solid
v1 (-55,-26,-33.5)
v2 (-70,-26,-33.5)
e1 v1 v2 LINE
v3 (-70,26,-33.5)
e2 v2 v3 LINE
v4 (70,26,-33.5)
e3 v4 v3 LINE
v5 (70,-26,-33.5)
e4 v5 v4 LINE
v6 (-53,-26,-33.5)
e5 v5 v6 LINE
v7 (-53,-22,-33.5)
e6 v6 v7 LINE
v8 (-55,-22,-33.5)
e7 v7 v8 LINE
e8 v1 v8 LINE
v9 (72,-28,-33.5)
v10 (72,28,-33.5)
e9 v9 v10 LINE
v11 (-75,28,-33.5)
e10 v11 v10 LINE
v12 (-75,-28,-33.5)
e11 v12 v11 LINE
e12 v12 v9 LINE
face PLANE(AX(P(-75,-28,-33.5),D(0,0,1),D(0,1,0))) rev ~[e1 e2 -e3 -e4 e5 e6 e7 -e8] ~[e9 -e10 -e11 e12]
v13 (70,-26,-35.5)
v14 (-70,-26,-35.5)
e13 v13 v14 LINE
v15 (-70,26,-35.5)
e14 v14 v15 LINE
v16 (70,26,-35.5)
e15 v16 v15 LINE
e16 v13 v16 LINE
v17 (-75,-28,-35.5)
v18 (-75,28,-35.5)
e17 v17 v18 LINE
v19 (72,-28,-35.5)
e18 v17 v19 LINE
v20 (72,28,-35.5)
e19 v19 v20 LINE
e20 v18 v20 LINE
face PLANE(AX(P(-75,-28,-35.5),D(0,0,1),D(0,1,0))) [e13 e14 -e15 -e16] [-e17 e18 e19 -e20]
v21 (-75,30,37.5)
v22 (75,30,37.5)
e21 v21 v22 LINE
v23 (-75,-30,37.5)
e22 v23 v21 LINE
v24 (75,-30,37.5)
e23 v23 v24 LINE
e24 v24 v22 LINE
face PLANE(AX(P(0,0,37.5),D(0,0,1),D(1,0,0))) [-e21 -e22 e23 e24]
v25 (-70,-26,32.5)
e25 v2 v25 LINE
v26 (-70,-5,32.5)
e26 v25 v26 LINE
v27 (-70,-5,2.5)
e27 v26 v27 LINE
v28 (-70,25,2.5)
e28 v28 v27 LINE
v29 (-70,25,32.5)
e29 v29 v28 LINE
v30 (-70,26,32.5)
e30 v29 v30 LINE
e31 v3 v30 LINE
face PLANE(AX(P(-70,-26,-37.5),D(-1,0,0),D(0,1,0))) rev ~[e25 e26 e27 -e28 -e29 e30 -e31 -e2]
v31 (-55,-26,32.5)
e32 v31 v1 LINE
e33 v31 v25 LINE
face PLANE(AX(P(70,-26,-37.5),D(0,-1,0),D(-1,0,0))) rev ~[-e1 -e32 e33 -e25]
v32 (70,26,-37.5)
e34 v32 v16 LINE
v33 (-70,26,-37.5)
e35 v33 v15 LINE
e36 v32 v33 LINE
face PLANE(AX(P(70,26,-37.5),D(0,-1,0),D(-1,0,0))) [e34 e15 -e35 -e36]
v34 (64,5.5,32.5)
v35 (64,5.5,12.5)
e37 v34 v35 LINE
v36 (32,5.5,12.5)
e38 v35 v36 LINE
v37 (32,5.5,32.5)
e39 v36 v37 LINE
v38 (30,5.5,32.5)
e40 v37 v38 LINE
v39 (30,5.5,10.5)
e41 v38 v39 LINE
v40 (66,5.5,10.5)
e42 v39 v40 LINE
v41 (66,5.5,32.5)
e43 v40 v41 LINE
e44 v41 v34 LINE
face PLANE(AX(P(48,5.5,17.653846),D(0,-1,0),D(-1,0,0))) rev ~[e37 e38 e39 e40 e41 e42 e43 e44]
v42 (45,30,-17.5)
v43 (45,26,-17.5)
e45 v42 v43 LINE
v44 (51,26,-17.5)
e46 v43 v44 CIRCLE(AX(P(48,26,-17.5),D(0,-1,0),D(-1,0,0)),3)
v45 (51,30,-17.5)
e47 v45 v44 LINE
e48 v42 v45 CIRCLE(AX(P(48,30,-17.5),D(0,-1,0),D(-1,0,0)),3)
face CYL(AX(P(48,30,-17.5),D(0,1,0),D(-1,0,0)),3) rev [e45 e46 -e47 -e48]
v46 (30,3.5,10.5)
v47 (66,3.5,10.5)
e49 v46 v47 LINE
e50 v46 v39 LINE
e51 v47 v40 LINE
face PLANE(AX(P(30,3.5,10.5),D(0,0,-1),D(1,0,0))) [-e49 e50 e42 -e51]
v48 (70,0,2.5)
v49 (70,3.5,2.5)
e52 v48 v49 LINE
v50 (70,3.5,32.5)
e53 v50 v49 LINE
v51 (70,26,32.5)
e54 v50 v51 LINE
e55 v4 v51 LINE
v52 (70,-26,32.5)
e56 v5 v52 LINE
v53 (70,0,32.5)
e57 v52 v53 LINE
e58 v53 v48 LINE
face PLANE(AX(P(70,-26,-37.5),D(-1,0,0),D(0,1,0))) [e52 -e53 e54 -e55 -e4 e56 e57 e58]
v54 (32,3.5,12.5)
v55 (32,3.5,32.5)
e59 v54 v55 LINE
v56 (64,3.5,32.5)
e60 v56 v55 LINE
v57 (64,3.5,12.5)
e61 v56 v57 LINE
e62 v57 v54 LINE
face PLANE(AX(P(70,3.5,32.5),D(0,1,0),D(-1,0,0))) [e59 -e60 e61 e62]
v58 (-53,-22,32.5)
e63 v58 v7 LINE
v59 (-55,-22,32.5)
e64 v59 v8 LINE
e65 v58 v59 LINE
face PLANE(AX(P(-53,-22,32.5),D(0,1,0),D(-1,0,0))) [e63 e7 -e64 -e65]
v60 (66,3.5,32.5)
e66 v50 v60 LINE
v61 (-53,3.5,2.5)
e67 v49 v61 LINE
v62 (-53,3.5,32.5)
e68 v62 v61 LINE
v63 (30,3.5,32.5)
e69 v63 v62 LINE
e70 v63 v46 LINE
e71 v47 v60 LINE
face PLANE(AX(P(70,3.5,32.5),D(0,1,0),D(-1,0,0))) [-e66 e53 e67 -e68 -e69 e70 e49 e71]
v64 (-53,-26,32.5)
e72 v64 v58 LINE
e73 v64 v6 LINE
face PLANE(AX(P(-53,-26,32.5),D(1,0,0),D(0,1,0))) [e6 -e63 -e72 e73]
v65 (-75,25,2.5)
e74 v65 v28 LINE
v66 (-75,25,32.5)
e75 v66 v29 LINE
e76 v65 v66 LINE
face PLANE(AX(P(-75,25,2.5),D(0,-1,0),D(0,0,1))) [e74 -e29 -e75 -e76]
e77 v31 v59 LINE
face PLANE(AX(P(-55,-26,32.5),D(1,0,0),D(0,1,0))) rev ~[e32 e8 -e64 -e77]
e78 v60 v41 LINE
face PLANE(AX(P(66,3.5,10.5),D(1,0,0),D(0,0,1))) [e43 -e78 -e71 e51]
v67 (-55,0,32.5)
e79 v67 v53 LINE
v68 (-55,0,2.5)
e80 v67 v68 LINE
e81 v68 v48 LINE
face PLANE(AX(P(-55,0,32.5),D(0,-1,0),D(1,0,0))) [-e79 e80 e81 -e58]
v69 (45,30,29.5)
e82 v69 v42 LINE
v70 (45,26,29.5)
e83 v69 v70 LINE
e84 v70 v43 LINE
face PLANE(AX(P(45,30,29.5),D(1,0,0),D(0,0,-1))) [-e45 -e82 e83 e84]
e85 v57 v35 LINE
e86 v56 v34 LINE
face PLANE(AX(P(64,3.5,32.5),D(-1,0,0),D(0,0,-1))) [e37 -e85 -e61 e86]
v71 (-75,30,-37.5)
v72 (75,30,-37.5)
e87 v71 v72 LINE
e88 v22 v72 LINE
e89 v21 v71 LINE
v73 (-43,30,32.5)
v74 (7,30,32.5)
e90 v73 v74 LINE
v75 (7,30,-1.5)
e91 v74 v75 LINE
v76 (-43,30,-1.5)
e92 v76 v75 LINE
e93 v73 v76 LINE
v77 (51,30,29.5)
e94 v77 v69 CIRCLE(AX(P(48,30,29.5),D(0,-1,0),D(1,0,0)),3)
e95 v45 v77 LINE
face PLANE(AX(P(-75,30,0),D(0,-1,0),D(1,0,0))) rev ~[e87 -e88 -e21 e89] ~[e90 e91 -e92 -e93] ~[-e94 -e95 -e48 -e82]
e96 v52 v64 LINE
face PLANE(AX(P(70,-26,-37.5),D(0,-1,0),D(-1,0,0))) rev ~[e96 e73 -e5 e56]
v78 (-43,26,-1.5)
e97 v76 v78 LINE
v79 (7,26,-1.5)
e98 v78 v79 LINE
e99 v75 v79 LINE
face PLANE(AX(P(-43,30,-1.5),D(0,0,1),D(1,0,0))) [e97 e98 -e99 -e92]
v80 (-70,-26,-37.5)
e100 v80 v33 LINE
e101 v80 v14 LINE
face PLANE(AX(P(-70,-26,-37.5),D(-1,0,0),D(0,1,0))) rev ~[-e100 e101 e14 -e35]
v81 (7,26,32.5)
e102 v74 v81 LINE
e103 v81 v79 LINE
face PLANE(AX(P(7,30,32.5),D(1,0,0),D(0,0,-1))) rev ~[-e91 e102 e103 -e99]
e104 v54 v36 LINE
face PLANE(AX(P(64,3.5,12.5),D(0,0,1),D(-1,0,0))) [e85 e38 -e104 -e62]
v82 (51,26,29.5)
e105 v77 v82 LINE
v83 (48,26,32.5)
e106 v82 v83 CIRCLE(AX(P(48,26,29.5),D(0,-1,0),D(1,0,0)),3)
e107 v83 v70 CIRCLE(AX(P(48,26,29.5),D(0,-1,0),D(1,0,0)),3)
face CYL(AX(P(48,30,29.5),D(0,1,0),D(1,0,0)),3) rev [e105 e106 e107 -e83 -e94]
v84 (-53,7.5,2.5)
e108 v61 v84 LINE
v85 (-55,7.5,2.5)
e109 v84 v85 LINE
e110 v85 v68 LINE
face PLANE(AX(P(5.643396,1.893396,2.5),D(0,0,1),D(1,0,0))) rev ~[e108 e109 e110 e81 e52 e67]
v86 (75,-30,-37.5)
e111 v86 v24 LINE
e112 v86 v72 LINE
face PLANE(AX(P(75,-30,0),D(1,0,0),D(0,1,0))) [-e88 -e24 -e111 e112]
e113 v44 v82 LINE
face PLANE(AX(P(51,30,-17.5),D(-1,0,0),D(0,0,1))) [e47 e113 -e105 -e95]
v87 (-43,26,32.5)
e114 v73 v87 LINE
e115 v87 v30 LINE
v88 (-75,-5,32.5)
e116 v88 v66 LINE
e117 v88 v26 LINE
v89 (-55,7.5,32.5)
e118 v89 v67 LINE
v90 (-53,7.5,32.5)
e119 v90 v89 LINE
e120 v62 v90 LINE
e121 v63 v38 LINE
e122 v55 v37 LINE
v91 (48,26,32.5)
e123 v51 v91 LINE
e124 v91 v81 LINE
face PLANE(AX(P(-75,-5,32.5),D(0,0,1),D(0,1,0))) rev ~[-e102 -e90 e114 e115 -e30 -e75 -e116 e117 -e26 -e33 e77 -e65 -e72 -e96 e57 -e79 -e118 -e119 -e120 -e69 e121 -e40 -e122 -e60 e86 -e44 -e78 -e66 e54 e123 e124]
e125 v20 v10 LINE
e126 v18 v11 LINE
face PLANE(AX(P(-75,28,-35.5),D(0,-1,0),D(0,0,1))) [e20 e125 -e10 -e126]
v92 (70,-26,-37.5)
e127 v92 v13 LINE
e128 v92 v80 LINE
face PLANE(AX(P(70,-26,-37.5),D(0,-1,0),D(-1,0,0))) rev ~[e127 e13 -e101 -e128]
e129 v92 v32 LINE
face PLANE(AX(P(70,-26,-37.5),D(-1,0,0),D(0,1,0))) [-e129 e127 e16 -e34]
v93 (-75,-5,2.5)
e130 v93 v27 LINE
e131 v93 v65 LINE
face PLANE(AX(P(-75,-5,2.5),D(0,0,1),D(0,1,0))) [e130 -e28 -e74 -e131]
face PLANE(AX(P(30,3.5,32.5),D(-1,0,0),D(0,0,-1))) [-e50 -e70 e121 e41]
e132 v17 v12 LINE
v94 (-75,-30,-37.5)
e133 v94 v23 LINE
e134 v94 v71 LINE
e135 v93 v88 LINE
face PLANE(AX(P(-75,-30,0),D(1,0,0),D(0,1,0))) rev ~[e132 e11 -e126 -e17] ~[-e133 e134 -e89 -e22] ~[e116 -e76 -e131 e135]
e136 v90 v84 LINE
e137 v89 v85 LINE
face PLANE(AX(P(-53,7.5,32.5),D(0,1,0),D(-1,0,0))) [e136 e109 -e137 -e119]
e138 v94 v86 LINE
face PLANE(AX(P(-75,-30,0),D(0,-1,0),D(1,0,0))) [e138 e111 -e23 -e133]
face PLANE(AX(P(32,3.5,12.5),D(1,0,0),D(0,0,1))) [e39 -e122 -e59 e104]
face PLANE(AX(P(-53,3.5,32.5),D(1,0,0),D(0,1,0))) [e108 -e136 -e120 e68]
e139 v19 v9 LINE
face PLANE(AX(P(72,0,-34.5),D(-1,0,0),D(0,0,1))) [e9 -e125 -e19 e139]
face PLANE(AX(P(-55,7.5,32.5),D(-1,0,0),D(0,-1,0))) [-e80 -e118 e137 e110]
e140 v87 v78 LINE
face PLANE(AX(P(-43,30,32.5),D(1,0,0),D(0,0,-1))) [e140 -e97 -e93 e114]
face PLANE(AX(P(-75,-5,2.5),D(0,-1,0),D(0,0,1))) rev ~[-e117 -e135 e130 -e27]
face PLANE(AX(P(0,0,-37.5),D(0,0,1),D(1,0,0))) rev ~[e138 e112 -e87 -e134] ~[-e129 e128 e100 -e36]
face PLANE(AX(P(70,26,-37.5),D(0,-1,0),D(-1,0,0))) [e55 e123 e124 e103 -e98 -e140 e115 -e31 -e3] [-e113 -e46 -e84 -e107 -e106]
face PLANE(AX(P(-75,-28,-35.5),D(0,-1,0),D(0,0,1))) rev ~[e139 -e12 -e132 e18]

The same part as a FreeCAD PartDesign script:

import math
import FreeCAD as App
import Part
import Sketcher
from FreeCAD import Vector


def add_polygon(sketch, points):
    """Adds a closed chain of lines whose ends are joined by coincident constraints."""
    first, n = sketch.GeometryCount, len(points)
    for a, b in zip(points, points[1:] + points[:1]):
        sketch.addGeometry(Part.LineSegment(App.Vector(*a, 0), App.Vector(*b, 0)), False)
    for i in range(n):
        sketch.addConstraint(Sketcher.Constraint("Coincident", first + i, 2, first + (i + 1) % n, 1))

doc = App.newDocument("Part")
body = doc.addObject("PartDesign::Body", "Body")

sketch1 = body.newObject("Sketcher::SketchObject", "Sketch")
sketch1.AttachmentSupport = (doc.getObject("XY_Plane"), [""])
sketch1.MapMode = "FlatFace"
add_polygon(sketch1, [(-75, 30), (-75, -30), (75, -30), (75, 30)])
sketch1.addConstraint(Sketcher.Constraint("Vertical", 0))
sketch1.addConstraint(Sketcher.Constraint("Horizontal", 1))
sketch1.addConstraint(Sketcher.Constraint("Vertical", 2))
sketch1.addConstraint(Sketcher.Constraint("Horizontal", 3))
sketch1.addConstraint(Sketcher.Constraint("Symmetric", 0, 2, 2, 2, -1, 1))
sketch1.addConstraint(Sketcher.Constraint("DistanceX", 1, 1, 1, 2, 150.0))
sketch1.addConstraint(Sketcher.Constraint("DistanceY", 0, 2, 0, 1, 60.0))
pad1 = body.newObject("PartDesign::Pad", "Pad")
pad1.Profile = sketch1
pad1.Length = 75
pad1.Midplane = True

sketch2 = body.newObject("Sketcher::SketchObject", "Sketch001")
sketch2.AttachmentSupport = (doc.getObject("XY_Plane"), [""])
sketch2.MapMode = "FlatFace"
sketch2.AttachmentOffset = App.Placement(Vector(0, 0, -37.5), App.Rotation())
add_polygon(sketch2, [(70, 26), (70, -26), (-70, -26), (-70, 26)])
sketch2.addConstraint(Sketcher.Constraint("Vertical", 0))
sketch2.addConstraint(Sketcher.Constraint("Horizontal", 1))
sketch2.addConstraint(Sketcher.Constraint("Vertical", 2))
sketch2.addConstraint(Sketcher.Constraint("Horizontal", 3))
sketch2.addConstraint(Sketcher.Constraint("Symmetric", 0, 2, 2, 2, -1, 1))
sketch2.addConstraint(Sketcher.Constraint("DistanceX", 1, 2, 1, 1, 140.0))
sketch2.addConstraint(Sketcher.Constraint("DistanceY", 0, 2, 0, 1, 52.0))
pocket1 = body.newObject("PartDesign::Pocket", "Pocket")
pocket1.Profile = sketch2
pocket1.Length = 70
pocket1.Reversed = True

sketch3 = body.newObject("Sketcher::SketchObject", "Sketch002")
sketch3.AttachmentSupport = (doc.getObject("YZ_Plane"), [""])
sketch3.MapMode = "FlatFace"
sketch3.AttachmentOffset = App.Placement(Vector(0, 0, -75), App.Rotation())
add_polygon(sketch3, [(25, 2), (-5, 2), (-5, 32), (25, 32)])
sketch3.addConstraint(Sketcher.Constraint("Horizontal", 0))
sketch3.addConstraint(Sketcher.Constraint("Vertical", 1))
sketch3.addConstraint(Sketcher.Constraint("Horizontal", 2))
sketch3.addConstraint(Sketcher.Constraint("Vertical", 3))
sketch3.addConstraint(Sketcher.Constraint("Equal", 2, 1))
sketch3.addConstraint(Sketcher.Constraint("DistanceX", 0, 2, 0, 1, 30.0))
sketch3.addConstraint(Sketcher.Constraint("DistanceX", 0, 2, -1, 1, 5.0))
sketch3.addConstraint(Sketcher.Constraint("DistanceY", -1, 1, 0, 2, 2.5))
pocket2 = body.newObject("PartDesign::Pocket", "Pocket001")
pocket2.Profile = sketch3
pocket2.Type = "UpToFirst"
pocket2.Reversed = True

sketch4 = body.newObject("Sketcher::SketchObject", "Sketch003")
sketch4.AttachmentSupport = (doc.getObject("XY_Plane"), [""])
sketch4.MapMode = "FlatFace"
sketch4.AttachmentOffset = App.Placement(Vector(0, 0, 32.5), App.Rotation())
add_polygon(sketch4, [(-53, -22), (-53, -26), (-55, -26), (-55, -22)])
sketch4.addConstraint(Sketcher.Constraint("Vertical", 0))
sketch4.addConstraint(Sketcher.Constraint("Horizontal", 1))
sketch4.addConstraint(Sketcher.Constraint("Vertical", 2))
sketch4.addConstraint(Sketcher.Constraint("Horizontal", 3))
sketch4.addConstraint(Sketcher.Constraint("DistanceX", 1, 2, 1, 1, 2.0))
sketch4.addConstraint(Sketcher.Constraint("DistanceY", 0, 2, 0, 1, 4.0))
sketch4.addConstraint(Sketcher.Constraint("DistanceX", 0, 2, -1, 1, 53.0))
sketch4.addConstraint(Sketcher.Constraint("DistanceY", 0, 2, -1, 1, 26.0))
pad2 = body.newObject("PartDesign::Pad", "Pad001")
pad2.Profile = sketch4
pad2.Length = 66
pad2.Reversed = True

sketch5 = body.newObject("Sketcher::SketchObject", "Sketch004")
sketch5.AttachmentSupport = (doc.getObject("XY_Plane"), [""])
sketch5.MapMode = "FlatFace"
sketch5.AttachmentOffset = App.Placement(Vector(0, 0, 32.5), App.Rotation())
add_polygon(sketch5, [(-53, 3.5), (70, 3.5), (70, 0), (-55, 0), (-55, 7.5), (-53, 7.5)])
sketch5.addConstraint(Sketcher.Constraint("Horizontal", 0))
sketch5.addConstraint(Sketcher.Constraint("Vertical", 1))
sketch5.addConstraint(Sketcher.Constraint("Horizontal", 2))
sketch5.addConstraint(Sketcher.Constraint("Vertical", 3))
sketch5.addConstraint(Sketcher.Constraint("Horizontal", 4))
sketch5.addConstraint(Sketcher.Constraint("Vertical", 5))
sketch5.addConstraint(Sketcher.Constraint("PointOnObject", 1, 2, -1))
sketch5.addConstraint(Sketcher.Constraint("DistanceX", 0, 1, 0, 2, 123.0))
sketch5.addConstraint(Sketcher.Constraint("DistanceX", 2, 2, 2, 1, 125.0))
sketch5.addConstraint(Sketcher.Constraint("DistanceY", 5, 2, 5, 1, 4.0))
sketch5.addConstraint(Sketcher.Constraint("DistanceY", 1, 2, 1, 1, 3.5))
sketch5.addConstraint(Sketcher.Constraint("DistanceX", -1, 1, 0, 2, 70.0))
pad3 = body.newObject("PartDesign::Pad", "Pad002")
pad3.Profile = sketch5
pad3.Length = 30
pad3.Reversed = True

sketch6 = body.newObject("Sketcher::SketchObject", "Sketch005")
sketch6.AttachmentSupport = (doc.getObject("XZ_Plane"), [""])
sketch6.MapMode = "FlatFace"
sketch6.AttachmentOffset = App.Placement(Vector(0, 0, -30), App.Rotation())
add_polygon(sketch6, [(-43, -2), (-43, 32), (7, 32), (7, -2)])
sketch6.addConstraint(Sketcher.Constraint("Vertical", 0))
sketch6.addConstraint(Sketcher.Constraint("Horizontal", 1))
sketch6.addConstraint(Sketcher.Constraint("Vertical", 2))
sketch6.addConstraint(Sketcher.Constraint("Horizontal", 3))
sketch6.addConstraint(Sketcher.Constraint("DistanceX", 1, 1, 1, 2, 50.0))
sketch6.addConstraint(Sketcher.Constraint("DistanceY", 0, 1, 0, 2, 34.0))
sketch6.addConstraint(Sketcher.Constraint("DistanceX", 0, 2, -1, 1, 43.0))
sketch6.addConstraint(Sketcher.Constraint("DistanceY", -1, 1, 0, 2, 32.5))
pocket3 = body.newObject("PartDesign::Pocket", "Pocket002")
pocket3.Profile = sketch6
pocket3.Type = "UpToFirst"
pocket3.Reversed = True

sketch7 = body.newObject("Sketcher::SketchObject", "Sketch006")
sketch7.AttachmentSupport = (doc.getObject("XZ_Plane"), [""])
sketch7.MapMode = "FlatFace"
sketch7.AttachmentOffset = App.Placement(Vector(0, 0, -30), App.Rotation())
sketch7.addGeometry(Part.LineSegment(Vector(51, 29.5, 0), Vector(51, -17.5, 0)), False)
sketch7.addGeometry(Part.ArcOfCircle(Part.Circle(Vector(48, -17.5, 0), Vector(0, 0, 1), 3), math.radians(180), math.radians(360)), False)
sketch7.addGeometry(Part.LineSegment(Vector(45, -17.5, 0), Vector(45, 29.5, 0)), False)
sketch7.addGeometry(Part.ArcOfCircle(Part.Circle(Vector(48, 29.5, 0), Vector(0, 0, 1), 3), math.radians(0), math.radians(180)), False)
sketch7.addConstraint(Sketcher.Constraint("Tangent", 0, 2, 1, 2))
sketch7.addConstraint(Sketcher.Constraint("Tangent", 1, 1, 2, 1))
sketch7.addConstraint(Sketcher.Constraint("Tangent", 2, 2, 3, 2))
sketch7.addConstraint(Sketcher.Constraint("Tangent", 3, 1, 0, 1))
sketch7.addConstraint(Sketcher.Constraint("Vertical", 0))
sketch7.addConstraint(Sketcher.Constraint("Vertical", 2))
sketch7.addConstraint(Sketcher.Constraint("Radius", 1, 3.0))
sketch7.addConstraint(Sketcher.Constraint("DistanceY", 0, 2, 0, 1, 47.0))
sketch7.addConstraint(Sketcher.Constraint("DistanceX", -1, 1, 1, 3, 48.0))
sketch7.addConstraint(Sketcher.Constraint("DistanceY", 1, 3, -1, 1, 17.5))
pocket4 = body.newObject("PartDesign::Pocket", "Pocket003")
pocket4.Profile = sketch7
pocket4.Length = 4
pocket4.Reversed = True

sketch8 = body.newObject("Sketcher::SketchObject", "Sketch007")
sketch8.AttachmentSupport = (doc.getObject("YZ_Plane"), [""])
sketch8.MapMode = "FlatFace"
sketch8.AttachmentOffset = App.Placement(Vector(0, 0, -75), App.Rotation())
add_polygon(sketch8, [(28, -35.5), (-28, -35.5), (-28, -33.5), (28, -33.5)])
sketch8.addConstraint(Sketcher.Constraint("Horizontal", 0))
sketch8.addConstraint(Sketcher.Constraint("Vertical", 1))
sketch8.addConstraint(Sketcher.Constraint("Horizontal", 2))
sketch8.addConstraint(Sketcher.Constraint("Vertical", 3))
sketch8.addConstraint(Sketcher.Constraint("DistanceX", 0, 2, 0, 1, 56.0))
sketch8.addConstraint(Sketcher.Constraint("DistanceY", 1, 1, 1, 2, 2.0))
sketch8.addConstraint(Sketcher.Constraint("DistanceX", 0, 2, -1, 1, 28.0))
sketch8.addConstraint(Sketcher.Constraint("DistanceY", 0, 2, -1, 1, 35.5))
pocket5 = body.newObject("PartDesign::Pocket", "Pocket004")
pocket5.Profile = sketch8
pocket5.Length = 147
pocket5.Reversed = True

sketch9 = body.newObject("Sketcher::SketchObject", "Sketch008")
sketch9.AttachmentSupport = (doc.getObject("XZ_Plane"), [""])
sketch9.MapMode = "FlatFace"
sketch9.AttachmentOffset = App.Placement(Vector(0, 0, -3.5), App.Rotation())
add_polygon(sketch9, [(64, 12.5), (64, 32.5), (66, 32.5), (66, 10.5), (30, 10.5), (30, 32.5), (32, 32.5), (32, 12.5)])
sketch9.addConstraint(Sketcher.Constraint("Vertical", 0))
sketch9.addConstraint(Sketcher.Constraint("Horizontal", 1))
sketch9.addConstraint(Sketcher.Constraint("Vertical", 2))
sketch9.addConstraint(Sketcher.Constraint("Horizontal", 3))
sketch9.addConstraint(Sketcher.Constraint("Vertical", 4))
sketch9.addConstraint(Sketcher.Constraint("Horizontal", 5))
sketch9.addConstraint(Sketcher.Constraint("Vertical", 6))
sketch9.addConstraint(Sketcher.Constraint("Horizontal", 7))
sketch9.addConstraint(Sketcher.Constraint("Horizontal", 1, 2, 4, 2))
sketch9.addConstraint(Sketcher.Constraint("Equal", 1, 5))
sketch9.addConstraint(Sketcher.Constraint("DistanceX", 1, 1, 1, 2, 2.0))
sketch9.addConstraint(Sketcher.Constraint("DistanceX", 3, 2, 3, 1, 36.0))
sketch9.addConstraint(Sketcher.Constraint("DistanceY", 0, 1, 0, 2, 20.0))
sketch9.addConstraint(Sketcher.Constraint("DistanceY", 2, 2, 2, 1, 22.0))
sketch9.addConstraint(Sketcher.Constraint("DistanceX", -1, 1, 0, 2, 64.0))
sketch9.addConstraint(Sketcher.Constraint("DistanceY", -1, 1, 0, 2, 32.5))
pad4 = body.newObject("PartDesign::Pad", "Pad003")
pad4.Profile = sketch9
pad4.Length = 2
pad4.Reversed = True

doc.recompute()
